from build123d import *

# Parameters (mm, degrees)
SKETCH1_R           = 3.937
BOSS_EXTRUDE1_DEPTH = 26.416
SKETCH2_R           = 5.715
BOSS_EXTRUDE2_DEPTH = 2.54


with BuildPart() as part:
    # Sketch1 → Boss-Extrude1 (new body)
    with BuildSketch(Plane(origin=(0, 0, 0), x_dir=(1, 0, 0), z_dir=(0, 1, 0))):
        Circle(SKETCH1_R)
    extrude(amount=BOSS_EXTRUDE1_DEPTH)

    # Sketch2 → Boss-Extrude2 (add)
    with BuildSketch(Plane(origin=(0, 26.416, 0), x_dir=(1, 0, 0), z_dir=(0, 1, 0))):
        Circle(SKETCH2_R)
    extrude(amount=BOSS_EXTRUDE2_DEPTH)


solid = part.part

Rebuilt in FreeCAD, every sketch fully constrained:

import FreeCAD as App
import Part
import Sketcher
Q = App.Units.Quantity

doc = App.newDocument("Part")
body = doc.addObject("PartDesign::Body", "Body")

# Sketch on XZ plane
sketch1 = doc.addObject("Sketcher::SketchObject", "Sketch")
body.addObject(sketch1)
sketch1.AttachmentSupport = (doc.XZ_Plane, [""])
sketch1.MapMode = "FlatFace"
sketch1.addGeometry(Part.Circle(App.Vector(0, 0, 0), App.Vector(0, 0, 1), 3.937), False)
sketch1.addConstraint(Sketcher.Constraint("Coincident", 0, 3, -1, 1))
sketch1.addConstraint(Sketcher.Constraint("Diameter", 0, Q("0.31 in")))
pad1 = doc.addObject("PartDesign::Pad", "Pad")
body.addObject(pad1)
pad1.Profile = sketch1
pad1.Length = Q("1.04 in")
pad1.Reversed = True

# Sketch on XZ plane
sketch2 = doc.addObject("Sketcher::SketchObject", "Sketch001")
body.addObject(sketch2)
sketch2.AttachmentSupport = (doc.XZ_Plane, [""])
sketch2.MapMode = "FlatFace"
sketch2.AttachmentOffset = App.Placement(App.Vector(0, 0, -1.04 * 25.4), App.Rotation())
sketch2.addGeometry(Part.Circle(App.Vector(0, 0, 0), App.Vector(0, 0, 1), 5.715), False)
sketch2.addConstraint(Sketcher.Constraint("Coincident", 0, 3, -1, 1))
sketch2.addConstraint(Sketcher.Constraint("Diameter", 0, Q("0.45 in")))
pad2 = doc.addObject("PartDesign::Pad", "Pad001")
body.addObject(pad2)
pad2.Profile = sketch2
pad2.Length = Q("0.1 in")
pad2.Reversed = True

doc.recompute()
